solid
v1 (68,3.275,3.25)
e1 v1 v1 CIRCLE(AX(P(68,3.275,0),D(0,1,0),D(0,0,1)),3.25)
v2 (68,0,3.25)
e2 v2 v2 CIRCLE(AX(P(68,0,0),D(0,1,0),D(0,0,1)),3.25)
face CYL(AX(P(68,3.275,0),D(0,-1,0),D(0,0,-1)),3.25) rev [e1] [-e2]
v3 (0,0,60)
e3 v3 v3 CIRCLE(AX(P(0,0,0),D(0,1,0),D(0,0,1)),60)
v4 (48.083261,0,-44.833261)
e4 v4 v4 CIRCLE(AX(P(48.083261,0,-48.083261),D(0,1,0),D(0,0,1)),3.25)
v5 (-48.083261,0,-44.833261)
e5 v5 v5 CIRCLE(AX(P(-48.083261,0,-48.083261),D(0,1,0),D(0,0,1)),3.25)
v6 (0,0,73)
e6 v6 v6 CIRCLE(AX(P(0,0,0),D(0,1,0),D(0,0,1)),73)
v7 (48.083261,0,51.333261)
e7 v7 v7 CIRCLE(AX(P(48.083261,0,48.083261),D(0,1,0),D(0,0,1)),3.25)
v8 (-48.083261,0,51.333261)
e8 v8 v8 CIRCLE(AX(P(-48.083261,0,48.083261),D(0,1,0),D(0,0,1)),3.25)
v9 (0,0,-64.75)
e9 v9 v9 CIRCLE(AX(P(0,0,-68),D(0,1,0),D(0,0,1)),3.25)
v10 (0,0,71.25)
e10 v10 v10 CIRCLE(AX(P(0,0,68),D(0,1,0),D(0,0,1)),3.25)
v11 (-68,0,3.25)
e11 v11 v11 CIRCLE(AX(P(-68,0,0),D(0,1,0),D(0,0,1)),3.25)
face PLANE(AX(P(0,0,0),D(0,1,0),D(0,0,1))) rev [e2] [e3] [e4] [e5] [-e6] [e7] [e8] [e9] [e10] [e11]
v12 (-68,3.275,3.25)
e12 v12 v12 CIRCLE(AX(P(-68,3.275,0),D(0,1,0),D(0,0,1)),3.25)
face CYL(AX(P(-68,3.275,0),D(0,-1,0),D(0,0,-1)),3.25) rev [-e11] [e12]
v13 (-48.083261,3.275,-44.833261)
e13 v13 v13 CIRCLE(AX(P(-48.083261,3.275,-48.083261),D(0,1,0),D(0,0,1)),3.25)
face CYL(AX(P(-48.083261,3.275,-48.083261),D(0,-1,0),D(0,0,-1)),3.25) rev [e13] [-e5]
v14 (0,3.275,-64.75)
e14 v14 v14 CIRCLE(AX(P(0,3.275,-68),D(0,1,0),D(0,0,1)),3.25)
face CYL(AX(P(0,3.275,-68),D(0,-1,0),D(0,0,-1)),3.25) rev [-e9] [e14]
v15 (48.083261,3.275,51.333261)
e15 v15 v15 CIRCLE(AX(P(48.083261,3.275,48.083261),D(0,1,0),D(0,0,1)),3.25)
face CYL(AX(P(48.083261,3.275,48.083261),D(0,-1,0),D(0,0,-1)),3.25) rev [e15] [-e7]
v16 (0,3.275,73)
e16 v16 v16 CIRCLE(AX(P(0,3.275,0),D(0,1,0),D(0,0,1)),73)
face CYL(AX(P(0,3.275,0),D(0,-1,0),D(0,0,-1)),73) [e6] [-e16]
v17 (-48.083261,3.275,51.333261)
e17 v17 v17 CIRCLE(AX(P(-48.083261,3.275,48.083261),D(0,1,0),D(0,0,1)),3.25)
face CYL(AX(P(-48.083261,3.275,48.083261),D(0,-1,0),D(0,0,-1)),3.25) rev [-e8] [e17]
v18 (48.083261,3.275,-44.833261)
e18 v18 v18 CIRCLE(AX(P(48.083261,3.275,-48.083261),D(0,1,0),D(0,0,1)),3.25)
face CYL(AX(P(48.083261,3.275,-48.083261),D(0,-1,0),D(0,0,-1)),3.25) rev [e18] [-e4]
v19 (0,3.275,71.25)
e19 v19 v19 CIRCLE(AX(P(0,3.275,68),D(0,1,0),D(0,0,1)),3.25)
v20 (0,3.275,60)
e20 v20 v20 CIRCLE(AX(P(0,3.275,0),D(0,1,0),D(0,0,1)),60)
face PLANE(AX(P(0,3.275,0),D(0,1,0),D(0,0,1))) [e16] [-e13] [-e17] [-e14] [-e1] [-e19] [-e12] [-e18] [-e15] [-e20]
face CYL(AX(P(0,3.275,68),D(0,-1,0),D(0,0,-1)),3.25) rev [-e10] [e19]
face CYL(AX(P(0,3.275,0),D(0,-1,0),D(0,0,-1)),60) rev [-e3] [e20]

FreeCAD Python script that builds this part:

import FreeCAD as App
import Part
import Sketcher

V = App.Vector

doc = App.newDocument("Part")
body = doc.addObject("PartDesign::Body", "Body")

# Sketch on XZ plane
sketch1 = body.newObject("Sketcher::SketchObject", "Sketch")
sketch1.AttachmentSupport = (doc.getObject("XZ_Plane"), [""])
sketch1.MapMode = "FlatFace"
sketch1.addGeometry(Part.Circle(V(0, 0, 0), V(0, 0, 1), 73), False)
sketch1.addGeometry(Part.Circle(V(-48.1, 48.1, 0), V(0, 0, 1), 3.2), False)
sketch1.addGeometry(Part.Circle(V(0, 68, 0), V(0, 0, 1), 3.2), False)
sketch1.addGeometry(Part.Circle(V(48.1, 48.1, 0), V(0, 0, 1), 3.2), False)
sketch1.addGeometry(Part.Circle(V(-68, 0, 0), V(0, 0, 1), 3.2), False)
sketch1.addGeometry(Part.Circle(V(-48.1, -48.1, 0), V(0, 0, 1), 3.2), False)
sketch1.addGeometry(Part.Circle(V(0, 0, 0), V(0, 0, 1), 60), False)
sketch1.addGeometry(Part.Circle(V(68, 0, 0), V(0, 0, 1), 3.2), False)
sketch1.addGeometry(Part.Circle(V(0, -68, 0), V(0, 0, 1), 3.2), False)
sketch1.addGeometry(Part.Circle(V(48.1, -48.1, 0), V(0, 0, 1), 3.2), False)
sketch1.addConstraint(Sketcher.Constraint("Coincident", 0, 3, -1, 1))
sketch1.addConstraint(Sketcher.Constraint("Coincident", 6, 3, -1, 1))
sketch1.addConstraint(Sketcher.Constraint("Equal", 1, 2))
sketch1.addConstraint(Sketcher.Constraint("Equal", 2, 3))
sketch1.addConstraint(Sketcher.Constraint("Equal", 3, 4))
sketch1.addConstraint(Sketcher.Constraint("Equal", 4, 5))
sketch1.addConstraint(Sketcher.Constraint("Equal", 5, 7))
sketch1.addConstraint(Sketcher.Constraint("Equal", 7, 8))
sketch1.addConstraint(Sketcher.Constraint("Equal", 8, 9))
sketch1.addConstraint(Sketcher.Constraint("Symmetric", 3, 3, 5, 3, -1, 1))
sketch1.addConstraint(Sketcher.Constraint("Symmetric", 4, 3, 7, 3, -1, 1))
sketch1.addConstraint(Sketcher.Constraint("Symmetric", 2, 3, 8, 3, -1, 1))
sketch1.addConstraint(Sketcher.Constraint("Symmetric", 1, 3, 9, 3, -1, 1))
sketch1.addConstraint(Sketcher.Constraint("Symmetric", 1, 3, 3, 3, -2))
sketch1.addConstraint(Sketcher.Constraint("PointOnObject", 2, 3, -2))
sketch1.addConstraint(Sketcher.Constraint("PointOnObject", 4, 3, -1))
sketch1.addConstraint(Sketcher.Constraint("Diameter", 0, 146.0))
sketch1.addConstraint(Sketcher.Constraint("Diameter", 6, 120.0))
sketch1.addConstraint(Sketcher.Constraint("Diameter", 1, 6.5))
sketch1.addConstraint(Sketcher.Constraint("DistanceY", -1, 1, 2, 3, 68.0))
sketch1.addConstraint(Sketcher.Constraint("DistanceX", 4, 3, -1, 1, 68.0))
sketch1.addConstraint(Sketcher.Constraint("DistanceX", 1, 3, -1, 1, 48.083261))
sketch1.addConstraint(Sketcher.Constraint("DistanceY", -1, 1, 1, 3, 48.083261))
pad1 = body.newObject("PartDesign::Pad", "Pad")
pad1.Profile = sketch1
pad1.Length = 3.275
pad1.Reversed = True

doc.recompute()
